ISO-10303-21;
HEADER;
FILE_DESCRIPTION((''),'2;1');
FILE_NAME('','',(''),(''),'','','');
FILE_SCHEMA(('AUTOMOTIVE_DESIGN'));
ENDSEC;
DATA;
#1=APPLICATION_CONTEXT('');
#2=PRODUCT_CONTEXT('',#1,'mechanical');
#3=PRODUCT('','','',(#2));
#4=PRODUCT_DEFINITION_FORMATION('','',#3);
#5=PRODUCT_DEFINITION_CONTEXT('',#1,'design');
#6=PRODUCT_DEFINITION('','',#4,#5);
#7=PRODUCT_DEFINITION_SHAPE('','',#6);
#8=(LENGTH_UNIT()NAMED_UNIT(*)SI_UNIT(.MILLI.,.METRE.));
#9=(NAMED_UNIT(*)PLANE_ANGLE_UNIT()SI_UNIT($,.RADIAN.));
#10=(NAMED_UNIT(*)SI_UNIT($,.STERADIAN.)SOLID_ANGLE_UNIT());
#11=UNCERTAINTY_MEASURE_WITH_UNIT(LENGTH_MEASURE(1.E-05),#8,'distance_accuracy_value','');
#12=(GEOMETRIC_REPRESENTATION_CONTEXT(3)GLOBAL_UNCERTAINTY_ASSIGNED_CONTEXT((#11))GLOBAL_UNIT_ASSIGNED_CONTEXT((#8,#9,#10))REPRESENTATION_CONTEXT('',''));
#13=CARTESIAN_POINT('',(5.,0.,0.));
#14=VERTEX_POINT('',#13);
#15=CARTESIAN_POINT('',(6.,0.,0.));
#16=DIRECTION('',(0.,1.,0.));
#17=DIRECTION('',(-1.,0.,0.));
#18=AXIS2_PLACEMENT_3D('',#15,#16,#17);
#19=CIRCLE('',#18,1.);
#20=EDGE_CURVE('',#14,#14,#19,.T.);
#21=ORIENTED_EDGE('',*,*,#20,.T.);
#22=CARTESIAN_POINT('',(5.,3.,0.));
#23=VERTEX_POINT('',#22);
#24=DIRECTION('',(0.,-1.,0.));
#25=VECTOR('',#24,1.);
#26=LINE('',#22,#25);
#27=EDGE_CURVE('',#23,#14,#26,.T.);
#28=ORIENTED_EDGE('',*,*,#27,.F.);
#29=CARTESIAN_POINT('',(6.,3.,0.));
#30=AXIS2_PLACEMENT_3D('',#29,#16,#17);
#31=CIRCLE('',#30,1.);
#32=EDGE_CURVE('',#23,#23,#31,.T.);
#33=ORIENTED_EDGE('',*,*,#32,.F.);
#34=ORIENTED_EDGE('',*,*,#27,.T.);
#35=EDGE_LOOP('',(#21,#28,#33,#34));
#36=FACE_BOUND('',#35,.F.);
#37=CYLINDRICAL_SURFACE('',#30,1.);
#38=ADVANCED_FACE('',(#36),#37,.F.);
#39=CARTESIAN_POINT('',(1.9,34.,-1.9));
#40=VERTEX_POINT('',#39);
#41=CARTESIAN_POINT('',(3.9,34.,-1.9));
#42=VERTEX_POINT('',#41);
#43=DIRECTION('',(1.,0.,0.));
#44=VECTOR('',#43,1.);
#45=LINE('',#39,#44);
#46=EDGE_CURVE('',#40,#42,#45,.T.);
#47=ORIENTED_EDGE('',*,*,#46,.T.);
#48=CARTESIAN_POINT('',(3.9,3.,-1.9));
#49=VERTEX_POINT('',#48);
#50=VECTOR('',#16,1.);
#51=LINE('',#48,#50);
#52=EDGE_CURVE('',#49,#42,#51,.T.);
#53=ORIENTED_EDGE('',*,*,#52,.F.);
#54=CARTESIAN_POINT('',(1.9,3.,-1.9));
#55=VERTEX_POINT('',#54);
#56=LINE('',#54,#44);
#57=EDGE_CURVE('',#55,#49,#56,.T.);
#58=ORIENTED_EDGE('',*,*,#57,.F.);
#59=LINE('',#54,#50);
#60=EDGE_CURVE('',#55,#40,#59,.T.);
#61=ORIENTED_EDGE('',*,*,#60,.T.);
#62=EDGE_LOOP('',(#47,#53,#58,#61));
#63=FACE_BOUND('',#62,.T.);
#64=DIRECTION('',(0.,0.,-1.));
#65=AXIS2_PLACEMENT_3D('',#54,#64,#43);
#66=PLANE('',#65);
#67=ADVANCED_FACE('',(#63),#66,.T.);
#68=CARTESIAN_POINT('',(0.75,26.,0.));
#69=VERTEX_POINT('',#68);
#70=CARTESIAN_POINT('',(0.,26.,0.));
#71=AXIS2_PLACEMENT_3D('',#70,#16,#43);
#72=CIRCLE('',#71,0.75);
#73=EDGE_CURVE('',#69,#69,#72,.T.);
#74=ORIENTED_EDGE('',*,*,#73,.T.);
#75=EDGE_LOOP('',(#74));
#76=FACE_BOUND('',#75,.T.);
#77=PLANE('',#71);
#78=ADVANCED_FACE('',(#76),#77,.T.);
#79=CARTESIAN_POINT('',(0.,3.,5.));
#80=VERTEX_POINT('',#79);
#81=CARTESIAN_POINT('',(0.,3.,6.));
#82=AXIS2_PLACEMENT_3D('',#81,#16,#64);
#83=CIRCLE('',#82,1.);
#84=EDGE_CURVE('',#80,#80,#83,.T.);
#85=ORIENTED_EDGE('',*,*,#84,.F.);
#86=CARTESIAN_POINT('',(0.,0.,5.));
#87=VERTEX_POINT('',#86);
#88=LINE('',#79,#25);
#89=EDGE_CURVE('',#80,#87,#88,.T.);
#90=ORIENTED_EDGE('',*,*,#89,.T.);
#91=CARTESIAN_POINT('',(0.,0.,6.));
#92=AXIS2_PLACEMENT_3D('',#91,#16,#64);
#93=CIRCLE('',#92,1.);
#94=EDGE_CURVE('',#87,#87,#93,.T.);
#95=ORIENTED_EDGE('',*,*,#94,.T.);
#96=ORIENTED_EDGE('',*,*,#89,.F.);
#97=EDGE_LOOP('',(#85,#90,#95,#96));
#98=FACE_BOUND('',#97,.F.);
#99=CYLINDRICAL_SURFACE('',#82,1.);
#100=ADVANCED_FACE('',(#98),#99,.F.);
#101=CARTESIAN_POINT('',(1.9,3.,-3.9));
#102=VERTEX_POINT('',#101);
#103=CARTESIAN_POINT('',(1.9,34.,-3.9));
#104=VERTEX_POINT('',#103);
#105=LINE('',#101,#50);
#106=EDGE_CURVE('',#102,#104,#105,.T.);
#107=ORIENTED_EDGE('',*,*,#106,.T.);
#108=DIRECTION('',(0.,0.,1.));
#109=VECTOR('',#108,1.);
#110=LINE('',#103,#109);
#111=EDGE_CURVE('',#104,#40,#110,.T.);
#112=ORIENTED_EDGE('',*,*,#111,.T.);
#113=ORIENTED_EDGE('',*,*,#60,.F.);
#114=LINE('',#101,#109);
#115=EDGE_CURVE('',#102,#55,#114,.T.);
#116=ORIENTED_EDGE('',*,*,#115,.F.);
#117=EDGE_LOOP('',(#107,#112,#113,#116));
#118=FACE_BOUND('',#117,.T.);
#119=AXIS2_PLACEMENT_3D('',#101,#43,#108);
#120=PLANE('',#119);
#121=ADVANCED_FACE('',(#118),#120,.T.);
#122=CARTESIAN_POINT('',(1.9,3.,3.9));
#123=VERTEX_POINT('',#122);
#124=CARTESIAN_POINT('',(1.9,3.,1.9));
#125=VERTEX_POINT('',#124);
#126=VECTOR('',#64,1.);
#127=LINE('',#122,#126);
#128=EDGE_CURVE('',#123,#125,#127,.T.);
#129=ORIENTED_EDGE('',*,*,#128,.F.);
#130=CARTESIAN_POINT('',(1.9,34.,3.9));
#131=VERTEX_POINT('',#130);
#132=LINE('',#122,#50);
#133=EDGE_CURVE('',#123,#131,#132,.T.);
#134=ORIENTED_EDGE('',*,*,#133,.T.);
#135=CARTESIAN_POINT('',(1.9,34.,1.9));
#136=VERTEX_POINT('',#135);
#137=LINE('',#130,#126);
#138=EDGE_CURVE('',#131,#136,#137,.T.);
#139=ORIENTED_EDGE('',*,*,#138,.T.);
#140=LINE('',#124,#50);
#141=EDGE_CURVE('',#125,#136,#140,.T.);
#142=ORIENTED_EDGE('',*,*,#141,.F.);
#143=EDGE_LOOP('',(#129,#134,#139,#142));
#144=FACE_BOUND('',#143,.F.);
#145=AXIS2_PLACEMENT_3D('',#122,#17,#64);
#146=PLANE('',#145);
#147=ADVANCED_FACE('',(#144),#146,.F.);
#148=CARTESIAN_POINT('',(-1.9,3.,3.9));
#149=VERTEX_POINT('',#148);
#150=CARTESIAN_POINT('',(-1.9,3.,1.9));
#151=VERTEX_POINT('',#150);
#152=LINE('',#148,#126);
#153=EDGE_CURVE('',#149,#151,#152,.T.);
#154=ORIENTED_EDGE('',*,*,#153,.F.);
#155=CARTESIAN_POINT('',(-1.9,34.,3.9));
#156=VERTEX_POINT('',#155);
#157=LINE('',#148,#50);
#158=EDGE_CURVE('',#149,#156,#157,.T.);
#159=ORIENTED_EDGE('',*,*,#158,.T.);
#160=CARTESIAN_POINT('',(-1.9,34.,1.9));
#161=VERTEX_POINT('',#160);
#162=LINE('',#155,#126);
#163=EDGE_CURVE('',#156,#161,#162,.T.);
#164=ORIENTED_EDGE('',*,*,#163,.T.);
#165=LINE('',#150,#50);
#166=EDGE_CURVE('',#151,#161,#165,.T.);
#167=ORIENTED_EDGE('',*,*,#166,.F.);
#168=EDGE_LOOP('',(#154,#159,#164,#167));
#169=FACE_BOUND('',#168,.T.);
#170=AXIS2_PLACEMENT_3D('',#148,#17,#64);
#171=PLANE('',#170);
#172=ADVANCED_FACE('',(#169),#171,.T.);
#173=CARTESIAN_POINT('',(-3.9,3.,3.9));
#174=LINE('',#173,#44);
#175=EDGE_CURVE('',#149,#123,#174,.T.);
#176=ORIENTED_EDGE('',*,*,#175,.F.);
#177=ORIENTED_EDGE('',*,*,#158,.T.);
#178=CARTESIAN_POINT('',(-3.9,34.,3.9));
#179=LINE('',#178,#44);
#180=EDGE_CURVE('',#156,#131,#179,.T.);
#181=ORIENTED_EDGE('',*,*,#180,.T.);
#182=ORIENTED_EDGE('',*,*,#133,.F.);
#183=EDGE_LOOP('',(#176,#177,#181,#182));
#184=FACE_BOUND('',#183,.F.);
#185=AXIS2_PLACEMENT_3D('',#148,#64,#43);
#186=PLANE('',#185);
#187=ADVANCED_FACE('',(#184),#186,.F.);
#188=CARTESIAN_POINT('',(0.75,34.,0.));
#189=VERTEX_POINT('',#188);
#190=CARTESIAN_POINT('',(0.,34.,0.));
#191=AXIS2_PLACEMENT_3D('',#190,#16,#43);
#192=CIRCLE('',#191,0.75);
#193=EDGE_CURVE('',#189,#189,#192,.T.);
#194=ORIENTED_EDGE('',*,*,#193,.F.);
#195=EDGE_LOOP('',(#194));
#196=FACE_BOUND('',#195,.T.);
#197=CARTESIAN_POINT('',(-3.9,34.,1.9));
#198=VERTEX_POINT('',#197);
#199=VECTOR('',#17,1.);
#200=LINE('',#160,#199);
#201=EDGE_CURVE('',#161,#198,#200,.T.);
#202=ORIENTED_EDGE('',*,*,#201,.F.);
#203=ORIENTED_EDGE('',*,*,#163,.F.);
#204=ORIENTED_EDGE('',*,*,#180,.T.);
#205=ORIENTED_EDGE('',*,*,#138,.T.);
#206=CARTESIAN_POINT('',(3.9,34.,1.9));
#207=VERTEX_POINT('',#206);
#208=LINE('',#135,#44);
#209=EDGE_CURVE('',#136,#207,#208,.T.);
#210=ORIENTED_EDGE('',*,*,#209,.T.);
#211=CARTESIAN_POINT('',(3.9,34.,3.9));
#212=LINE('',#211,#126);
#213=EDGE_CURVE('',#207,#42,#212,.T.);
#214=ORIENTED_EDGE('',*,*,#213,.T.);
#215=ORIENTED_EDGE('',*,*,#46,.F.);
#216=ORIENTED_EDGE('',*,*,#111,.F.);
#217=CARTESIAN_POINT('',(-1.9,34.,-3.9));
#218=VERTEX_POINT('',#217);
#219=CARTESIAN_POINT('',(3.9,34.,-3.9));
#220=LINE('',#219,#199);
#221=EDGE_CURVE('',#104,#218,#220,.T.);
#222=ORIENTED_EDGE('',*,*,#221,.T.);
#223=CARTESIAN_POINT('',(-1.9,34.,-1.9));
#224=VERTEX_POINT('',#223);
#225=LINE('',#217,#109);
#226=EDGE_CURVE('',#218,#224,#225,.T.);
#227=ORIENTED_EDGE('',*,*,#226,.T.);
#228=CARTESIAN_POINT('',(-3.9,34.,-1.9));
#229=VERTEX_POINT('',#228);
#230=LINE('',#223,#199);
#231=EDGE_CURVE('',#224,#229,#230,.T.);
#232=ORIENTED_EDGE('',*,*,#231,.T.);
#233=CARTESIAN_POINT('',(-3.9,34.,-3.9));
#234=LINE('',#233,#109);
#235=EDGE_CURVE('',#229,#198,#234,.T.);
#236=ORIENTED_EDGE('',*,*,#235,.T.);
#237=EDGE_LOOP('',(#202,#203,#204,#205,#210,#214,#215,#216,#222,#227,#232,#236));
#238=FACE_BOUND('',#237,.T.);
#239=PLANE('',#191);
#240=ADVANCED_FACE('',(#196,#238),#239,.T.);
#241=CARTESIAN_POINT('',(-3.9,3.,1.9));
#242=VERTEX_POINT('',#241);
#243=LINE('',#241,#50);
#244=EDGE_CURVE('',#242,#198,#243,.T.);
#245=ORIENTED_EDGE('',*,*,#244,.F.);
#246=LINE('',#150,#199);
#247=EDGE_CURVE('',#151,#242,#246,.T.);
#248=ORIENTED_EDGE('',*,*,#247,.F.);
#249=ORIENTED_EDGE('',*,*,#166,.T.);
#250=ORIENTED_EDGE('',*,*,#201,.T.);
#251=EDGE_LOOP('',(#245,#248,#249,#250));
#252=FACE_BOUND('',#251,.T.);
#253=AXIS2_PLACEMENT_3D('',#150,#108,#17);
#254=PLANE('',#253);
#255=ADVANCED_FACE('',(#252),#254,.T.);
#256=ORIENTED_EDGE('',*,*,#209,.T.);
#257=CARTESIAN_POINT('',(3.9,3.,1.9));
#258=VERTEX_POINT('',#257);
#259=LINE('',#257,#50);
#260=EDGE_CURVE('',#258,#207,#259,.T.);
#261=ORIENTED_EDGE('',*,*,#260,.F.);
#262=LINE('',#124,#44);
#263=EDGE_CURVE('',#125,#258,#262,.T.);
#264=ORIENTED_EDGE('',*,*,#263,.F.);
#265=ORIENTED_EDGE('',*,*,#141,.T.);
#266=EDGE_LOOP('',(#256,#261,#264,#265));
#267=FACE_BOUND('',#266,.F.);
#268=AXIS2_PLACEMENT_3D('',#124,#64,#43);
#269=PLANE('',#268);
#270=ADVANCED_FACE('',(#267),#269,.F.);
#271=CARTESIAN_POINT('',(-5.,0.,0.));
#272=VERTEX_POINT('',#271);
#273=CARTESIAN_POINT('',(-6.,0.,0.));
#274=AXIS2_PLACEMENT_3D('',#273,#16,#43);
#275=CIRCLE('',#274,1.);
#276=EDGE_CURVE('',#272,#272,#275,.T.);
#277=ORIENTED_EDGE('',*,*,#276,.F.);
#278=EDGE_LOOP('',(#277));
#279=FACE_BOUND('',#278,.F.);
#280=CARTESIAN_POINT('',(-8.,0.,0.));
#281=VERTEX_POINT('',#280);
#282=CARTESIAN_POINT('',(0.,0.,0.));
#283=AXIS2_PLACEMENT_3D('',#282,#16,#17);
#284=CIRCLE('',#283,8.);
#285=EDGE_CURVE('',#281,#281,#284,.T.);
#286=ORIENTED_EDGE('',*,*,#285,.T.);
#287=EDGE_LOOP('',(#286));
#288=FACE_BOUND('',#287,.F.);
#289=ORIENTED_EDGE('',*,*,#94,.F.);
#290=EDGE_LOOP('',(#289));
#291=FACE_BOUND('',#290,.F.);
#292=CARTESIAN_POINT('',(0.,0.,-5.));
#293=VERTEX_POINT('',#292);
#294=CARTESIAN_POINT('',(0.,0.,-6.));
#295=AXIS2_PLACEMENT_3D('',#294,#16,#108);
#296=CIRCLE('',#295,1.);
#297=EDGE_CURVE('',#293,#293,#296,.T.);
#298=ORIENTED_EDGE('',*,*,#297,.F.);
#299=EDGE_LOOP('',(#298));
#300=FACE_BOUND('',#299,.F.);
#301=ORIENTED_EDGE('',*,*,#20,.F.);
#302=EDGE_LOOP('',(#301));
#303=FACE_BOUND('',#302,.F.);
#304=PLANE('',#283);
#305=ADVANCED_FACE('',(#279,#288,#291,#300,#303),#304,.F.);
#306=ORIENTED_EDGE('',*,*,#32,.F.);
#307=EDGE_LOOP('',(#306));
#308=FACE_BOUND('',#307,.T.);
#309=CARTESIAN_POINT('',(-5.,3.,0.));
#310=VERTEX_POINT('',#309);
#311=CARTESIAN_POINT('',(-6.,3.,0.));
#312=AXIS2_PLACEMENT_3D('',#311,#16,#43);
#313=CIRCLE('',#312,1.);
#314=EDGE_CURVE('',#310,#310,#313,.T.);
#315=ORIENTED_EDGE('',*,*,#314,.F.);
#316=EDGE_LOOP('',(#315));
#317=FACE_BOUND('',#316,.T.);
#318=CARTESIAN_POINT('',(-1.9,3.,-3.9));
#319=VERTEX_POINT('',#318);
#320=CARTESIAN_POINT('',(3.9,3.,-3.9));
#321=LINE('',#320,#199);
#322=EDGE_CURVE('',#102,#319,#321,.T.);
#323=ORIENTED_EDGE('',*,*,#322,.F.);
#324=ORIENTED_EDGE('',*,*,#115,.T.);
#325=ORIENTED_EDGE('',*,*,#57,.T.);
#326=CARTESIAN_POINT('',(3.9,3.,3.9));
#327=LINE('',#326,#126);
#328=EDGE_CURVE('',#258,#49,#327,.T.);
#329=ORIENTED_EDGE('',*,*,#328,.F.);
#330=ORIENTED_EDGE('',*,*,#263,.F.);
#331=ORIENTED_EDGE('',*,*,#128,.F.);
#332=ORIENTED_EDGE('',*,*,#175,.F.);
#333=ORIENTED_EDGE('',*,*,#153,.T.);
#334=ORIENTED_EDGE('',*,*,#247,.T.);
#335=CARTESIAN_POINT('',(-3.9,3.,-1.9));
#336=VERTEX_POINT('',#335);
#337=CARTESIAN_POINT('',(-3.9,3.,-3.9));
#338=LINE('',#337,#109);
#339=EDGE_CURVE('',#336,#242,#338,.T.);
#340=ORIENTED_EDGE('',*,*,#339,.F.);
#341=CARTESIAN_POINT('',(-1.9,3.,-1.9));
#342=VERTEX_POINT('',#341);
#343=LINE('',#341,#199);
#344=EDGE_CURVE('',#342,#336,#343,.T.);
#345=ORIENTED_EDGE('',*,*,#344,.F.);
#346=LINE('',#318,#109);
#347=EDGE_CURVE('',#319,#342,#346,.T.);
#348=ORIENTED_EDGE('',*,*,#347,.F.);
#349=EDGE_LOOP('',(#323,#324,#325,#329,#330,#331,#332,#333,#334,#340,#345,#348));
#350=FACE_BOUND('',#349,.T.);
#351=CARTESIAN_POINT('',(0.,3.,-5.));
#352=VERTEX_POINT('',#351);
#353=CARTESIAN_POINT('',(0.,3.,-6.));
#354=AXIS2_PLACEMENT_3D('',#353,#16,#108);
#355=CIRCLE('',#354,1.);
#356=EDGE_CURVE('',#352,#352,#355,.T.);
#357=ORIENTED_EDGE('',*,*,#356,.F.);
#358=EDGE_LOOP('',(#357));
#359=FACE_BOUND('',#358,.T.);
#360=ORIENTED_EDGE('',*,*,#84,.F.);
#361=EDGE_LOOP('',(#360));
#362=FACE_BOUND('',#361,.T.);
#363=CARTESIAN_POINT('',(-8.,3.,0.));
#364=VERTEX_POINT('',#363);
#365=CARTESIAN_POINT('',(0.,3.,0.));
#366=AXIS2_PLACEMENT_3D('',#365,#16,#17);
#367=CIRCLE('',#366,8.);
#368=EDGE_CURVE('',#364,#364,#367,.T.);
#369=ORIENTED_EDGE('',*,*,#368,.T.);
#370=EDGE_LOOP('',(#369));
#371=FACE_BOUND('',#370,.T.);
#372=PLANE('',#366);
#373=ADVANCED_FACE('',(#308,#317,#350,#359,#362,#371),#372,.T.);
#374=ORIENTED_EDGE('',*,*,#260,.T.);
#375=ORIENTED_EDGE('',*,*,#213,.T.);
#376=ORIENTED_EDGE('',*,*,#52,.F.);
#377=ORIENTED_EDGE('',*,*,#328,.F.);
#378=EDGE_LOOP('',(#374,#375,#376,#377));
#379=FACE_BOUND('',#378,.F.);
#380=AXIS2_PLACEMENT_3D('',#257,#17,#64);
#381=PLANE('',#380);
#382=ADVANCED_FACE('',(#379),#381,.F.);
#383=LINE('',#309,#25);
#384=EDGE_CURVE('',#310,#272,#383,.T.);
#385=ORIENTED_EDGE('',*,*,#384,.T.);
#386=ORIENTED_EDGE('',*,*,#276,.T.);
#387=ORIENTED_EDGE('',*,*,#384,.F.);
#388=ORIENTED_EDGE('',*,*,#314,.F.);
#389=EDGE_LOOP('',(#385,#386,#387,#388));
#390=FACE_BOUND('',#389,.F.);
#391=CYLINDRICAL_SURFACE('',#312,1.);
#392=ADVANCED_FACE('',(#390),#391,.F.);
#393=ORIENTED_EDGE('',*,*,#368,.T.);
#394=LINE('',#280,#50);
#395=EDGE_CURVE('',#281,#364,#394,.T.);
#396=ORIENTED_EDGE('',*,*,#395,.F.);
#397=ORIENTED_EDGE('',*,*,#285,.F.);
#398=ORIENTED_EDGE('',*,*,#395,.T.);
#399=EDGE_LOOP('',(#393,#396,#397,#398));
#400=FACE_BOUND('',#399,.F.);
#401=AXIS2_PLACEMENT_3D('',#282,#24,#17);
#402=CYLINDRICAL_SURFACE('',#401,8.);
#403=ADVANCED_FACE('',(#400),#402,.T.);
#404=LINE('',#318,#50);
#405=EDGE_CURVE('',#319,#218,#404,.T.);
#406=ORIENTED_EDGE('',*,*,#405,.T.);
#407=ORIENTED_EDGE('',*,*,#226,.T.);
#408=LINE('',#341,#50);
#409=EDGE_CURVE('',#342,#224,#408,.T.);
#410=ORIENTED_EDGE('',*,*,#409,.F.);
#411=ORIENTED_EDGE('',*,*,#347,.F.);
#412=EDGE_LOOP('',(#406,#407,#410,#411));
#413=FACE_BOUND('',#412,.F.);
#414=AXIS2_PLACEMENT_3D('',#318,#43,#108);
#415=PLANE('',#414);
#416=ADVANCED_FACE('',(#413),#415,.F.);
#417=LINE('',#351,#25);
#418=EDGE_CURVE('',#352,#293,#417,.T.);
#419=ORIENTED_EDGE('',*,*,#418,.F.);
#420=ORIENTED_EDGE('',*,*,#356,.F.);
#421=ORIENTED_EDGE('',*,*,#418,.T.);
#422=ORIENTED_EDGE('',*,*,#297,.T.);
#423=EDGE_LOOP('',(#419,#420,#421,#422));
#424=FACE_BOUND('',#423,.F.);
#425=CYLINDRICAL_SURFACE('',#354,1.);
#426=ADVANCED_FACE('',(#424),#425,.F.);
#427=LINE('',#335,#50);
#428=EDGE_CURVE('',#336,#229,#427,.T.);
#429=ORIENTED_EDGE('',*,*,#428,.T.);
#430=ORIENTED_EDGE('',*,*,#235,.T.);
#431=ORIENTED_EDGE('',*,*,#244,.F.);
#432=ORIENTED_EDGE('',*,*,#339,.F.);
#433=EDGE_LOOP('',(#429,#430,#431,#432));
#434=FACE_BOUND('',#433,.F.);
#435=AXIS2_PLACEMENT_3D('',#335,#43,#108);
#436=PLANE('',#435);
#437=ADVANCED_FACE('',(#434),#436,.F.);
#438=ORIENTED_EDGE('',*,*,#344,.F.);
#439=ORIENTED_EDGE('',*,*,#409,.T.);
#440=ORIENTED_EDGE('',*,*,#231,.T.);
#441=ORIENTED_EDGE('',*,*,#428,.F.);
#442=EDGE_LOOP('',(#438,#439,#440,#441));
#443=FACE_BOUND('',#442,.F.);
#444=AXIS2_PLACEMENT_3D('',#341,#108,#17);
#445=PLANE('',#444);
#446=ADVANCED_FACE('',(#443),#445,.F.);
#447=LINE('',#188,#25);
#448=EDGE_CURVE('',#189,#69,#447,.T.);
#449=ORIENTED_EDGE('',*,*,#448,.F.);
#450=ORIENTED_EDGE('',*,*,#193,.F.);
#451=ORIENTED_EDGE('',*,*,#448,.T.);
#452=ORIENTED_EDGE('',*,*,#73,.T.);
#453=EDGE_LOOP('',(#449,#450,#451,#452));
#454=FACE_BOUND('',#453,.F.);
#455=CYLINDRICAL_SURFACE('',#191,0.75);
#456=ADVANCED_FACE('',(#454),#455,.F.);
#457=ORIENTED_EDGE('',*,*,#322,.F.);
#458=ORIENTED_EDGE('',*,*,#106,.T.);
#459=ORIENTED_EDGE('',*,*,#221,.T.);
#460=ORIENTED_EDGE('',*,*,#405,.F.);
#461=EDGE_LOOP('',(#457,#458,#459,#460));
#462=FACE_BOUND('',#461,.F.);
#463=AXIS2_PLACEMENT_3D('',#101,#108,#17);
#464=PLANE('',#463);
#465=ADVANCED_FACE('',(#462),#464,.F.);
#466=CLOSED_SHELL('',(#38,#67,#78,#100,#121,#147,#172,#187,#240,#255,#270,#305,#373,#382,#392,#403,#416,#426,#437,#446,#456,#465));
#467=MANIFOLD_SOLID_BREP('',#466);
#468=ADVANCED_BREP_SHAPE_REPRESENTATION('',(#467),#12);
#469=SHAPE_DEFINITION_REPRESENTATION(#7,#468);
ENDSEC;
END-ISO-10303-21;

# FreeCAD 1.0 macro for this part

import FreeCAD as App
import Part
import Sketcher
from FreeCAD import Vector
Q = App.Units.Quantity


def add_polygon(sketch, points):
    """Adds a closed chain of lines whose ends are joined by coincident constraints."""
    first, n = sketch.GeometryCount, len(points)
    for a, b in zip(points, points[1:] + points[:1]):
        sketch.addGeometry(Part.LineSegment(App.Vector(*a, 0), App.Vector(*b, 0)), False)
    for i in range(n):
        sketch.addConstraint(Sketcher.Constraint("Coincident", first + i, 2, first + (i + 1) % n, 1))

doc = App.newDocument("Part")
params = doc.addObject("Spreadsheet::Sheet", "Params")
for row, (alias, value) in enumerate([
    ("sketch1_diameter", "16 mm"),
    ("pad1_length", "3 mm"),
    ("sketch2_diameter", "2 mm"),
    ("pocket1_length", "3 mm"),
    ("sketch3_width", "2 mm"),
    ("pad2_length", "31 mm"),
    ("sketch4_diameter", "1.5 mm"),
    ("pocket2_length", "8 mm"),
], start=1):
    params.set(f"A{row}", alias)
    params.set(f"B{row}", "=" + value)
    params.setAlias(f"B{row}", alias)

body = doc.addObject("PartDesign::Body", "Body")

# Sketch on XZ plane
sketch1 = body.newObject("Sketcher::SketchObject", "Sketch")
sketch1.AttachmentSupport = (doc.getObject("XZ_Plane"), [""])
sketch1.MapMode = "FlatFace"
sketch1.addGeometry(Part.Circle(Vector(0, 0, 0), Vector(0, 0, 1), 8), False)
sketch1.addConstraint([
    Sketcher.Constraint("Coincident", 0, 3, -1, 1),
    Sketcher.Constraint("Diameter", 0, Q("16 mm")),
])
sketch1.setExpression("Constraints[1]", "Params.sketch1_diameter")
pad1 = body.newObject("PartDesign::Pad", "Pad")
pad1.Profile = sketch1
pad1.setExpression("Length", "Params.pad1_length")
pad1.Reversed = True

# Sketch on XZ plane
sketch2 = body.newObject("Sketcher::SketchObject", "Sketch001")
sketch2.AttachmentSupport = (doc.getObject("XZ_Plane"), [""])
sketch2.MapMode = "FlatFace"
sketch2.AttachmentOffset = App.Placement(Vector(0, 0, -3), App.Rotation())
sketch2.addGeometry(Part.Circle(Vector(-6, 0, 0), Vector(0, 0, 1), 1), False)
sketch2.addConstraint([
    Sketcher.Constraint("PointOnObject", 0, 3, -1),
    Sketcher.Constraint("Diameter", 0, Q("2 mm")),
    Sketcher.Constraint("DistanceX", 0, 3, -1, 1, Q("6 mm")),
])
sketch2.setExpression("Constraints[1]", "Params.sketch2_diameter")
pocket1 = body.newObject("PartDesign::Pocket", "Pocket")
pocket1.Profile = sketch2
pocket1.setExpression("Length", "Params.pocket1_length")
pocket1.Reversed = True
doc.recompute()

polarpattern = body.newObject("PartDesign::PolarPattern", "PolarPattern")
polarpattern.Originals = [pocket1]
polarpattern.Axis = (doc.getObject("Y_Axis"), [""])
polarpattern.Angle = 360
polarpattern.Occurrences = 4
body.Tip = polarpattern

# Sketch on XZ plane
sketch3 = body.newObject("Sketcher::SketchObject", "Sketch002")
sketch3.AttachmentSupport = (doc.getObject("XZ_Plane"), [""])
sketch3.MapMode = "FlatFace"
sketch3.AttachmentOffset = App.Placement(Vector(0, 0, -3), App.Rotation())
add_polygon(sketch3, [(1.9, -1.9), (1.9, -3.9), (-1.9, -3.9), (-1.9, -1.9), (-3.9, -1.9), (-3.9, 1.9), (-1.9, 1.9), (-1.9, 3.9), (1.9, 3.9), (1.9, 1.9), (3.9, 1.9), (3.9, -1.9)])  # lines 0-11
sketch3.addConstraint([
    Sketcher.Constraint("Vertical", 0),
    Sketcher.Constraint("Horizontal", 1),
    Sketcher.Constraint("Vertical", 2),
    Sketcher.Constraint("Horizontal", 3),
    Sketcher.Constraint("Vertical", 4),
    Sketcher.Constraint("Horizontal", 5),
    Sketcher.Constraint("Vertical", 6),
    Sketcher.Constraint("Horizontal", 7),
    Sketcher.Constraint("Vertical", 8),
    Sketcher.Constraint("Horizontal", 9),
    Sketcher.Constraint("Vertical", 10),
    Sketcher.Constraint("Horizontal", 11),
    Sketcher.Constraint("Symmetric", 0, 2, 6, 2, -1, 1),
    Sketcher.Constraint("Symmetric", 2, 2, 8, 2, -1, 1),
    Sketcher.Constraint("Symmetric", 4, 2, 10, 2, -1, 1),
    Sketcher.Constraint("Symmetric", 5, 2, 8, 2, -2),
    Sketcher.Constraint("Equal", 11, 0),
    Sketcher.Constraint("Equal", 7, 4),
    Sketcher.Constraint("DistanceX", 3, 2, 3, 1, Q("2 mm")),
    Sketcher.Constraint("DistanceY", 1, 2, 6, 2, Q("7.8 mm")),
])
sketch3.setExpression("Constraints[30]", "Params.sketch3_width")
pad2 = body.newObject("PartDesign::Pad", "Pad001")
pad2.Profile = sketch3
pad2.setExpression("Length", "Params.pad2_length")
pad2.Reversed = True

# Sketch on XZ plane
sketch4 = body.newObject("Sketcher::SketchObject", "Sketch003")
sketch4.AttachmentSupport = (doc.getObject("XZ_Plane"), [""])
sketch4.MapMode = "FlatFace"
sketch4.AttachmentOffset = App.Placement(Vector(0, 0, -34), App.Rotation())
sketch4.addGeometry(Part.Circle(Vector(0, 0, 0), Vector(0, 0, 1), 0.75), False)
sketch4.addConstraint([
    Sketcher.Constraint("Coincident", 0, 3, -1, 1),
    Sketcher.Constraint("Diameter", 0, Q("1.5 mm")),
])
sketch4.setExpression("Constraints[1]", "Params.sketch4_diameter")
pocket2 = body.newObject("PartDesign::Pocket", "Pocket001")
pocket2.Profile = sketch4
pocket2.setExpression("Length", "Params.pocket2_length")
pocket2.Reversed = True

doc.recompute()
